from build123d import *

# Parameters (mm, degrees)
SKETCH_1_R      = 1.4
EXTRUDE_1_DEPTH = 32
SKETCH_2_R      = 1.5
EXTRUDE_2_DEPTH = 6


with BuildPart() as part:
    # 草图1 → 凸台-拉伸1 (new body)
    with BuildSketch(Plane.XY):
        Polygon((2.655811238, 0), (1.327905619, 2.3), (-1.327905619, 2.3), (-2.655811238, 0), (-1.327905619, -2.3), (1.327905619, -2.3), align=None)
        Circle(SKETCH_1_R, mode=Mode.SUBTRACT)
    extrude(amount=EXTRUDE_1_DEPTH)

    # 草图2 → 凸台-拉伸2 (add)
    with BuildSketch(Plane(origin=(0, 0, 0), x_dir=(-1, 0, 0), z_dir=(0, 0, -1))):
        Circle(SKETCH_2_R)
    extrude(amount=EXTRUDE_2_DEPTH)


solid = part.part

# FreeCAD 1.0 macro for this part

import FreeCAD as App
import Part
import Sketcher
from FreeCAD import Vector
Q = App.Units.Quantity

doc = App.newDocument("Part")
body = doc.addObject("PartDesign::Body", "Body")

# Sketch on XY plane
sketch1 = body.newObject("Sketcher::SketchObject", "Sketch")
sketch1.AttachmentSupport = (doc.getObject("XY_Plane"), [""])
sketch1.MapMode = "FlatFace"
sketch1.addGeometry(Part.LineSegment(Vector(2.655811, 0, 0), Vector(1.327906, 2.3, 0)), False)
sketch1.addGeometry(Part.LineSegment(Vector(1.327906, 2.3, 0), Vector(-1.327906, 2.3, 0)), False)
sketch1.addGeometry(Part.LineSegment(Vector(-1.327906, 2.3, 0), Vector(-2.655811, 0, 0)), False)
sketch1.addGeometry(Part.LineSegment(Vector(-2.655811, 0, 0), Vector(-1.327906, -2.3, 0)), False)
sketch1.addGeometry(Part.LineSegment(Vector(-1.327906, -2.3, 0), Vector(1.327906, -2.3, 0)), False)
sketch1.addGeometry(Part.LineSegment(Vector(1.327906, -2.3, 0), Vector(2.655811, 0, 0)), False)
sketch1.addGeometry(Part.Circle(Vector(0, 0, 0), Vector(0, 0, 1), 1.4), False)
sketch1.addConstraint(Sketcher.Constraint("Coincident", 0, 2, 1, 1))
sketch1.addConstraint(Sketcher.Constraint("Coincident", 1, 2, 2, 1))
sketch1.addConstraint(Sketcher.Constraint("Coincident", 2, 2, 3, 1))
sketch1.addConstraint(Sketcher.Constraint("Coincident", 3, 2, 4, 1))
sketch1.addConstraint(Sketcher.Constraint("Coincident", 4, 2, 5, 1))
sketch1.addConstraint(Sketcher.Constraint("Coincident", 5, 2, 0, 1))
sketch1.addConstraint(Sketcher.Constraint("Horizontal", 1))
sketch1.addConstraint(Sketcher.Constraint("Horizontal", 4))
sketch1.addConstraint(Sketcher.Constraint("Coincident", 6, 3, -1, 1))
sketch1.addConstraint(Sketcher.Constraint("Symmetric", 0, 2, 3, 2, -1, 1))
sketch1.addConstraint(Sketcher.Constraint("Symmetric", 2, 2, 5, 2, -1, 1))
sketch1.addConstraint(Sketcher.Constraint("PointOnObject", 2, 2, -1))
sketch1.addConstraint(Sketcher.Constraint("Parallel", 2, 5))
sketch1.addConstraint(Sketcher.Constraint("Vertical", 1, 2, 3, 2))
sketch1.addConstraint(Sketcher.Constraint("Diameter", 6, Q("2.8 mm")))
sketch1.addConstraint(Sketcher.Constraint("Angle", 0, Q("120 deg")))
sketch1.addConstraint(Sketcher.Constraint("DistanceY", -1, 1, 0, 2, Q("2.3 mm")))
sketch1.addConstraint(Sketcher.Constraint("DistanceX", 1, 2, 1, 1, Q("2.655811 mm")))
pad1 = body.newObject("PartDesign::Pad", "Pad")
pad1.Profile = sketch1
pad1.Length = 32

# Sketch on XY plane
sketch2 = body.newObject("Sketcher::SketchObject", "Sketch001")
sketch2.AttachmentSupport = (doc.getObject("XY_Plane"), [""])
sketch2.MapMode = "FlatFace"
sketch2.addGeometry(Part.Circle(Vector(0, 0, 0), Vector(0, 0, 1), 1.5), False)
sketch2.addConstraint(Sketcher.Constraint("Coincident", 0, 3, -1, 1))
sketch2.addConstraint(Sketcher.Constraint("Diameter", 0, Q("3 mm")))
pad2 = body.newObject("PartDesign::Pad", "Pad001")
pad2.Profile = sketch2
pad2.Length = 6
pad2.Reversed = True

doc.recompute()
